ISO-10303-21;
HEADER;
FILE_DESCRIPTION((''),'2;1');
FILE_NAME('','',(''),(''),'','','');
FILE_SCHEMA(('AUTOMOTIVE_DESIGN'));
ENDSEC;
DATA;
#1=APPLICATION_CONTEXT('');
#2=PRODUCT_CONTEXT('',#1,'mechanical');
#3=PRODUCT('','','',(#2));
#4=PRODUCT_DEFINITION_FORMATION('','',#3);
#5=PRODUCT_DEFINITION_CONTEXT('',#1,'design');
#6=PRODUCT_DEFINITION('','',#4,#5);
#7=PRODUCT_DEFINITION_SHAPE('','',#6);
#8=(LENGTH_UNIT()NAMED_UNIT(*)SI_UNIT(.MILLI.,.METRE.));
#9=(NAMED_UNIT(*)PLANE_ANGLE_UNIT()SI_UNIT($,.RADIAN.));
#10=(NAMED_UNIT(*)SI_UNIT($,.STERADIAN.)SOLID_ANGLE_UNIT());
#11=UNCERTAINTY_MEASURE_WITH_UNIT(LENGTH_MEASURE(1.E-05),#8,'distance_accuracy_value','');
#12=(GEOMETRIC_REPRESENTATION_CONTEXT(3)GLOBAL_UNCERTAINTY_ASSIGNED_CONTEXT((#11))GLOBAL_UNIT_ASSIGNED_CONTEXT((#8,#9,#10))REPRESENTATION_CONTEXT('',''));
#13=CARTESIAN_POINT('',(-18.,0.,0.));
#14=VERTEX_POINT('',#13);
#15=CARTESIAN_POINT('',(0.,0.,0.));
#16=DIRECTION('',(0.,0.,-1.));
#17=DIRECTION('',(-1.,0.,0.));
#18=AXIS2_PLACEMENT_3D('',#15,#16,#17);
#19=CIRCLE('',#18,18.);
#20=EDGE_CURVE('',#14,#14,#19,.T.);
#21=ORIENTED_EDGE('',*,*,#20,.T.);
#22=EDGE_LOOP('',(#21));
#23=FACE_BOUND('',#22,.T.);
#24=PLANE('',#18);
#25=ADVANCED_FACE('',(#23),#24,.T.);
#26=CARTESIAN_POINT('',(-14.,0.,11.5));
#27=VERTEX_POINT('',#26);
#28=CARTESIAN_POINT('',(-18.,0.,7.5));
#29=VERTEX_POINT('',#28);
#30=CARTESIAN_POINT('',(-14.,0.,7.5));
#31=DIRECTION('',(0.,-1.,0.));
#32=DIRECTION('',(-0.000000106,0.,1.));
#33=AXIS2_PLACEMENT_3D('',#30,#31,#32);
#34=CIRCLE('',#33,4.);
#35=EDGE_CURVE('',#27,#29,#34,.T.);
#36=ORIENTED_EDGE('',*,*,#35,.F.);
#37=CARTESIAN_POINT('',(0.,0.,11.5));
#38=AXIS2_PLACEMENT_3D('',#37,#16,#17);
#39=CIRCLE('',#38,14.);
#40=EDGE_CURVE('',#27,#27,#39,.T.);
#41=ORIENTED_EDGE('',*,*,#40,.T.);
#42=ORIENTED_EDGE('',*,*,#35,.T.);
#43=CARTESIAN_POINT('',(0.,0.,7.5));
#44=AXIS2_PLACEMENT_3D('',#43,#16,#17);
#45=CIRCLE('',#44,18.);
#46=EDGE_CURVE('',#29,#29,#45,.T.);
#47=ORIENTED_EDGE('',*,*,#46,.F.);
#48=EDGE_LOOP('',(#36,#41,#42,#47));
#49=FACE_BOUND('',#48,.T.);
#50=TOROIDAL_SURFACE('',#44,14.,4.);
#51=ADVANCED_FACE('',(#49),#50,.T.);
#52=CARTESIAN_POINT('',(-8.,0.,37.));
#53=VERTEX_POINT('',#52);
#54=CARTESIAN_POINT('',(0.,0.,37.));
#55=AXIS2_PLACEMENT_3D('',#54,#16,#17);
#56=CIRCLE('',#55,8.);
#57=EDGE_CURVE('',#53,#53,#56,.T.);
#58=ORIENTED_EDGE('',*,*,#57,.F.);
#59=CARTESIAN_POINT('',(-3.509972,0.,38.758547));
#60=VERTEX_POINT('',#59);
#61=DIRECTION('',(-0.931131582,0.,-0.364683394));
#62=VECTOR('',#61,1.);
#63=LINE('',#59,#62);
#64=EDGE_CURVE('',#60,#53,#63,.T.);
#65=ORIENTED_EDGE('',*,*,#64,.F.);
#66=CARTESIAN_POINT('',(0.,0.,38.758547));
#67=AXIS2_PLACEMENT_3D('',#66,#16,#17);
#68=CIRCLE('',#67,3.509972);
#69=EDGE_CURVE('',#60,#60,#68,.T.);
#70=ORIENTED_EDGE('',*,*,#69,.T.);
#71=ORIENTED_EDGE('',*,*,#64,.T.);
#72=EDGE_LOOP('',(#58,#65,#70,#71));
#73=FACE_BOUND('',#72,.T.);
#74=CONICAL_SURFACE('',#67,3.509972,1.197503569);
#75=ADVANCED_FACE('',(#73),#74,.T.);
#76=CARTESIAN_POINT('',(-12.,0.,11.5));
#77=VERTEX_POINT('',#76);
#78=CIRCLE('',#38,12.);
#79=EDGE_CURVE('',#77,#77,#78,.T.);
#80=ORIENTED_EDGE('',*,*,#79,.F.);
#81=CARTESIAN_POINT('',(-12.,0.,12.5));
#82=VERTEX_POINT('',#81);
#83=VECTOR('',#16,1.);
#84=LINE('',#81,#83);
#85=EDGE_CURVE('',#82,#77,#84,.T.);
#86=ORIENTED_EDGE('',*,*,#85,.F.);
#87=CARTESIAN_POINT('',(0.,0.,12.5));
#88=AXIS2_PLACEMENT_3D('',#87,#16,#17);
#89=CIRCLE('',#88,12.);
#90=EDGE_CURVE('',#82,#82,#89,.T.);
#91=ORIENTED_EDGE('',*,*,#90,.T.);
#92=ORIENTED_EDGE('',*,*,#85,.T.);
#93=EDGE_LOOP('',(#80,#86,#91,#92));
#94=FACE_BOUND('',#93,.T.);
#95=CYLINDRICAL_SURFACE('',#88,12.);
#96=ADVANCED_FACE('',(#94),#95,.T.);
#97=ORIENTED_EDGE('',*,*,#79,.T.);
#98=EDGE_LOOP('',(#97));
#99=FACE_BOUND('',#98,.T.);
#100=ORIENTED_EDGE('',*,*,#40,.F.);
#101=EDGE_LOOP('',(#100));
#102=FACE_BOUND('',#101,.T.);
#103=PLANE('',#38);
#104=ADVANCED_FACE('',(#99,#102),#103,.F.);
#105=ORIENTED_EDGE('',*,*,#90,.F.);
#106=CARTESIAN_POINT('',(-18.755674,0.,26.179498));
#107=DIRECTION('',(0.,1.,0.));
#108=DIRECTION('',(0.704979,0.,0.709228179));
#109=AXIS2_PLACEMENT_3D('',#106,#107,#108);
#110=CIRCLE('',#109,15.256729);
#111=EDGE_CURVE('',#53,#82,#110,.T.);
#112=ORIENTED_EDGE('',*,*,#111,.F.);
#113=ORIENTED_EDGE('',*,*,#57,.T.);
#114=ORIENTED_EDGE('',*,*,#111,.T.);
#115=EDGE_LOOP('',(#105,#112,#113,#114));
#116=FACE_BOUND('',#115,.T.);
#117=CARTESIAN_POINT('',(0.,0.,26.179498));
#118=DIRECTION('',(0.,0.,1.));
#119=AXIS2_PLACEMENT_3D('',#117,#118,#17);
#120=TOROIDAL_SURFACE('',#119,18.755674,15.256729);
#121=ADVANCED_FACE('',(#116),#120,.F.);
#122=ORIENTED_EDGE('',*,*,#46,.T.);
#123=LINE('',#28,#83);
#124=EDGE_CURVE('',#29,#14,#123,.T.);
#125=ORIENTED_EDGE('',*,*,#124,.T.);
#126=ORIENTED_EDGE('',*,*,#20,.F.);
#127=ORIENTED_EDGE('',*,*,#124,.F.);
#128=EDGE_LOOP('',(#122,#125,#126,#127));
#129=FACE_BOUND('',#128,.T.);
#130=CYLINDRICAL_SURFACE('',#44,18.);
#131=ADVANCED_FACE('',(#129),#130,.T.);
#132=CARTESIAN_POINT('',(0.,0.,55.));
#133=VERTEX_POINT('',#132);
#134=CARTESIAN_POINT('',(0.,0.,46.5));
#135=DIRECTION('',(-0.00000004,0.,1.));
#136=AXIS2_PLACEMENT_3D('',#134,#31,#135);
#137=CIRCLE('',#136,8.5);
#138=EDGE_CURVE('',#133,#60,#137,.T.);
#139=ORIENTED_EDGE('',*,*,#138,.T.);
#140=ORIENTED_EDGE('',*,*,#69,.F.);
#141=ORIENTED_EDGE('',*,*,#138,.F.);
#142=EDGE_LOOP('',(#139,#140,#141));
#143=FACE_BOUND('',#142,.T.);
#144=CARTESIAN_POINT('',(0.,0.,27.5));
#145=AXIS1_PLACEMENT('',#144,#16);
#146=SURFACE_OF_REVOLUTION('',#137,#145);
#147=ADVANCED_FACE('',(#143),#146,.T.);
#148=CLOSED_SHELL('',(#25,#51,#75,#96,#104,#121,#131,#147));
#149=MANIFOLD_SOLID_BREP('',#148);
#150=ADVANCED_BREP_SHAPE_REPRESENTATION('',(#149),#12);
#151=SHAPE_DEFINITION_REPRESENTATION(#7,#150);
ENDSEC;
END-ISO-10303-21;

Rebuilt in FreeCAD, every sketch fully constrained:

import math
import FreeCAD as App
import Part
import Sketcher

V = App.Vector
Q = App.Units.Quantity

doc = App.newDocument("Part")
body = doc.addObject("PartDesign::Body", "Body")

sketch1 = doc.addObject("Sketcher::SketchObject", "Sketch")
body.addObject(sketch1)
sketch1.AttachmentSupport = (doc.XZ_Plane, [""])
sketch1.MapMode = "FlatFace"
sketch1.addGeometry(Part.LineSegment(V(-18, 0, 0), V(0, 0, 0)), False)
sketch1.addGeometry(Part.LineSegment(V(0, 0, 0), V(0, 55, 0)), False)
sketch1.addGeometry(Part.ArcOfCircle(Part.Circle(V(0, 46.5, 0), V(0, 0, 1), 8.5), math.radians(90), math.radians(246)), False)
sketch1.addGeometry(Part.LineSegment(V(-3.5, 38.8, 0), V(-8, 37, 0)), False)
sketch1.addGeometry(Part.ArcOfCircle(Part.Circle(V(-18.8, 26.2, 0), V(0, 0, 1), 15.3), math.radians(-64), math.radians(45)), False)
sketch1.addGeometry(Part.LineSegment(V(-12, 12.5, 0), V(-12, 11.5, 0)), False)
sketch1.addGeometry(Part.LineSegment(V(-12, 11.5, 0), V(-14, 11.5, 0)), False)
sketch1.addGeometry(Part.ArcOfCircle(Part.Circle(V(-14, 7.5, 0), V(0, 0, 1), 4), math.radians(90), math.radians(180)), False)
sketch1.addGeometry(Part.LineSegment(V(-18, 7.5, 0), V(-18, 0, 0)), False)
sketch1.addConstraint(Sketcher.Constraint("Coincident", 0, 2, 1, 1))
sketch1.addConstraint(Sketcher.Constraint("Coincident", 1, 2, 2, 1))
sketch1.addConstraint(Sketcher.Constraint("Coincident", 2, 2, 3, 1))
sketch1.addConstraint(Sketcher.Constraint("Coincident", 3, 2, 4, 2))
sketch1.addConstraint(Sketcher.Constraint("Coincident", 4, 1, 5, 1))
sketch1.addConstraint(Sketcher.Constraint("Coincident", 5, 2, 6, 1))
sketch1.addConstraint(Sketcher.Constraint("Tangent", 6, 2, 7, 1))
sketch1.addConstraint(Sketcher.Constraint("Tangent", 7, 2, 8, 1))
sketch1.addConstraint(Sketcher.Constraint("Coincident", 8, 2, 0, 1))
sketch1.addConstraint(Sketcher.Constraint("Horizontal", 0))
sketch1.addConstraint(Sketcher.Constraint("Vertical", 1))
sketch1.addConstraint(Sketcher.Constraint("Vertical", 5))
sketch1.addConstraint(Sketcher.Constraint("Horizontal", 6))
sketch1.addConstraint(Sketcher.Constraint("Vertical", 8))
sketch1.addConstraint(Sketcher.Constraint("Coincident", 0, 2, -1, 1))
sketch1.addConstraint(Sketcher.Constraint("PointOnObject", 2, 3, -2))
sketch1.addConstraint(Sketcher.Constraint("Radius", 7, Q("4 mm")))
sketch1.addConstraint(Sketcher.Constraint("Radius", 2, Q("8.5 mm")))
sketch1.addConstraint(Sketcher.Constraint("DistanceX", 0, 1, 0, 2, Q("18 mm")))
sketch1.addConstraint(Sketcher.Constraint("DistanceX", 6, 2, 6, 1, Q("2 mm")))
sketch1.addConstraint(Sketcher.Constraint("DistanceY", 1, 1, 1, 2, Q("55 mm")))
sketch1.addConstraint(Sketcher.Constraint("DistanceY", 5, 2, 5, 1, Q("1 mm")))
sketch1.addConstraint(Sketcher.Constraint("DistanceY", 8, 2, 8, 1, Q("7.5 mm")))
sketch1.addConstraint(Sketcher.Constraint("DistanceX", 3, 2, -1, 1, Q("8 mm")))
sketch1.addConstraint(Sketcher.Constraint("DistanceY", -1, 1, 3, 2, Q("37 mm")))
sketch1.addConstraint(Sketcher.Constraint("Radius", 4, Q("15.256729 mm")))
sketch1.addConstraint(Sketcher.Constraint("DistanceX", 4, 3, 2, 2, Q("15.245702 mm")))
revolution = doc.addObject("PartDesign::Revolution", "Revolution")
body.addObject(revolution)
revolution.Profile = sketch1
revolution.ReferenceAxis = (sketch1, ["V_Axis"])
revolution.Angle = 360

doc.recompute()
